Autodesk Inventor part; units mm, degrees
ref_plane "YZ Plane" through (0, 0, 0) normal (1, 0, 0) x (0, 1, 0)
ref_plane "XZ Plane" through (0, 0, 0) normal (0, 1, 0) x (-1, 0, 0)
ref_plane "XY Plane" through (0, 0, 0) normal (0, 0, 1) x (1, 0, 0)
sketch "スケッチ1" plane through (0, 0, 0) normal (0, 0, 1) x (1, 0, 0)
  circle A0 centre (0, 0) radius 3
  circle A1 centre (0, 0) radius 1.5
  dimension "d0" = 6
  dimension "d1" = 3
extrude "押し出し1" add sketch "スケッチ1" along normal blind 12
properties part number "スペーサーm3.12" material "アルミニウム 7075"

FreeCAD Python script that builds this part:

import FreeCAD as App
import Part
import Sketcher
from FreeCAD import Vector

doc = App.newDocument("Part")
body = doc.addObject("PartDesign::Body", "Body")

sketch1 = doc.addObject("Sketcher::SketchObject", "Sketch")
body.addObject(sketch1)
sketch1.AttachmentSupport = (doc.XY_Plane, [""])
sketch1.MapMode = "FlatFace"
sketch1.addGeometry([
    Part.Circle(Vector(0, 0, 0), Vector(0, 0, 1), 3),
    Part.Circle(Vector(0, 0, 0), Vector(0, 0, 1), 1.5),
], False)
sketch1.addConstraint([
    Sketcher.Constraint("Coincident", 0, 3, -1, 1),
    Sketcher.Constraint("Coincident", 1, 3, -1, 1),
    Sketcher.Constraint("Diameter", 0, 6.0),
    Sketcher.Constraint("Diameter", 1, 3.0),
])
pad1 = doc.addObject("PartDesign::Pad", "Pad")
body.addObject(pad1)
pad1.Profile = sketch1
pad1.Length = 12

doc.recompute()
